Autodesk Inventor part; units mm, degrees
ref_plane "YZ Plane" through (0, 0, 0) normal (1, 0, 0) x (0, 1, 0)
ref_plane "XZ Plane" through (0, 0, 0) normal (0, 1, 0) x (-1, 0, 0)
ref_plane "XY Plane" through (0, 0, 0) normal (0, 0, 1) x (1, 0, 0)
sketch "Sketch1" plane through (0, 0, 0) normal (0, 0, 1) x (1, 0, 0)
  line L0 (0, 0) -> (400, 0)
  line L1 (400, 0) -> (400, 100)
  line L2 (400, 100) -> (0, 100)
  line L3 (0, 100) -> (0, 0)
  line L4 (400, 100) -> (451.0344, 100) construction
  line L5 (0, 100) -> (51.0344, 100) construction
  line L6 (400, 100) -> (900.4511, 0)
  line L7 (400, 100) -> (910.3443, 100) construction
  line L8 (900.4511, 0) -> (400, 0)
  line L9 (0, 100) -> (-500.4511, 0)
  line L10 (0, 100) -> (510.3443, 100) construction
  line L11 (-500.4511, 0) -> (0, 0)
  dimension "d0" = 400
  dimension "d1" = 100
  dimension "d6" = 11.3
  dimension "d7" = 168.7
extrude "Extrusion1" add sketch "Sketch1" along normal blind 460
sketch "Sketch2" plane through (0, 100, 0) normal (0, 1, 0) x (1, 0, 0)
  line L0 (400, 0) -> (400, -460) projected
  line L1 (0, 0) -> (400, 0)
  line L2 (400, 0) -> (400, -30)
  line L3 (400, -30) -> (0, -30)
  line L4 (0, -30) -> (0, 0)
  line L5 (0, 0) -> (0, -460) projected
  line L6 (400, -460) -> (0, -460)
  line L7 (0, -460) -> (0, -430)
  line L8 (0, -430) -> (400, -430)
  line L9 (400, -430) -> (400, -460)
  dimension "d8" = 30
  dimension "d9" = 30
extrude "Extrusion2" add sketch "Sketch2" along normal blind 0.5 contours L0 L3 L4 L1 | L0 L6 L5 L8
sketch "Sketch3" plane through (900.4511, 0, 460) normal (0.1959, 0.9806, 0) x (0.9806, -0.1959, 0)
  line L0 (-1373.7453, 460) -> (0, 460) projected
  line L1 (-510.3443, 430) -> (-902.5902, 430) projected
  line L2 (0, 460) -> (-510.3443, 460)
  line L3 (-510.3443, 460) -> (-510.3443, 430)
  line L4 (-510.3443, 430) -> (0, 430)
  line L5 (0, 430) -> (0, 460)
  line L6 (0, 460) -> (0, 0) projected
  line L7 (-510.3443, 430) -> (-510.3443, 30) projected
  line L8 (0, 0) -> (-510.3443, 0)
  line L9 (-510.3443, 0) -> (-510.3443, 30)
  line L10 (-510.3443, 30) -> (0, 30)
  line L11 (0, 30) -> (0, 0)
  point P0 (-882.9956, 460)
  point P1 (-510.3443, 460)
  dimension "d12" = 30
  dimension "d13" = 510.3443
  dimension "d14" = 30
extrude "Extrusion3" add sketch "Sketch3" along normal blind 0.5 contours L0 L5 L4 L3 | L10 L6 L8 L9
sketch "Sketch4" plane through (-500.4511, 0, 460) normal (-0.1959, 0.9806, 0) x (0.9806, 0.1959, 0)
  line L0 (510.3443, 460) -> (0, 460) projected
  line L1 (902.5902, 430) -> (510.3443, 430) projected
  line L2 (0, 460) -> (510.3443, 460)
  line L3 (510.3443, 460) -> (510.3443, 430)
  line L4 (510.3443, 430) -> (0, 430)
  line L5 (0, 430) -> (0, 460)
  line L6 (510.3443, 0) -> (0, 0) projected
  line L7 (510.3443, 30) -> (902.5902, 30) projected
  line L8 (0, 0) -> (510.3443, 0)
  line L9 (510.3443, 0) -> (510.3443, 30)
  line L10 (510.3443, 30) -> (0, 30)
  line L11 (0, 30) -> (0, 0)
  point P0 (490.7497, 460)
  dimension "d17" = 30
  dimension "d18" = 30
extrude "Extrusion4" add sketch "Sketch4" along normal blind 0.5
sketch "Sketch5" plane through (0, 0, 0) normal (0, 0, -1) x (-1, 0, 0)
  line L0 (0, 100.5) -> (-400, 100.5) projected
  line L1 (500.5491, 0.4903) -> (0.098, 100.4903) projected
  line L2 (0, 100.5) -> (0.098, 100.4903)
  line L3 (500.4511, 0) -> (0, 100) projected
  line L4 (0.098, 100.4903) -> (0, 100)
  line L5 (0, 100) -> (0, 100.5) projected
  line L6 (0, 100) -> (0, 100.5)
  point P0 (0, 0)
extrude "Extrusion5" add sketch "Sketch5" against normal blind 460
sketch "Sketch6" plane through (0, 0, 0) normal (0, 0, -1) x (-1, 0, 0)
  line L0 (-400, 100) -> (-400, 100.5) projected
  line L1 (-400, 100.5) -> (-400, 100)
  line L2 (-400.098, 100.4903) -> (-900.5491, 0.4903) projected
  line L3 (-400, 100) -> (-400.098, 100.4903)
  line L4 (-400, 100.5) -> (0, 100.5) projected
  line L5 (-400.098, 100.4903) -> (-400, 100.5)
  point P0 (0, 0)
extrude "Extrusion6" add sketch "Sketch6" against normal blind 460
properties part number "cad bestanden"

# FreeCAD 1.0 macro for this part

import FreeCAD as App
import Part
import Sketcher
from FreeCAD import Vector
Q = App.Units.Quantity


def add_polygon(sketch, points):
    """Adds a closed chain of lines whose ends are joined by coincident constraints."""
    first, n = sketch.GeometryCount, len(points)
    for a, b in zip(points, points[1:] + points[:1]):
        sketch.addGeometry(Part.LineSegment(App.Vector(*a, 0), App.Vector(*b, 0)), False)
    for i in range(n):
        sketch.addConstraint(Sketcher.Constraint("Coincident", first + i, 2, first + (i + 1) % n, 1))

doc = App.newDocument("Part")
body = doc.addObject("PartDesign::Body", "Body")

# Sketch on XY plane
sketch1 = doc.addObject("Sketcher::SketchObject", "Sketch")
body.addObject(sketch1)
sketch1.AttachmentSupport = (doc.XY_Plane, [""])
sketch1.MapMode = "FlatFace"
add_polygon(sketch1, [(400, 100), (0, 100), (-500, 0), (900, 0)])  # lines 0-3
sketch1.addConstraint(Sketcher.Constraint("Horizontal", 0))
sketch1.addConstraint(Sketcher.Constraint("Horizontal", 2))
sketch1.addConstraint(Sketcher.Constraint("PointOnObject", 0, 2, -2))
sketch1.addConstraint(Sketcher.Constraint("PointOnObject", 1, 2, -1))
sketch1.addConstraint(Sketcher.Constraint("Equal", 1, 3))
sketch1.addConstraint(Sketcher.Constraint("DistanceX", 0, 2, 0, 1, Q("400 mm")))
sketch1.addConstraint(Sketcher.Constraint("DistanceY", -1, 1, 0, 2, Q("100 mm")))
sketch1.addConstraint(Sketcher.Constraint("Angle", 1, Q("-168.7 deg")))
pad1 = doc.addObject("PartDesign::Pad", "Pad")
body.addObject(pad1)
pad1.Profile = sketch1
pad1.Length = 460

# Sketch on XZ plane
sketch2 = doc.addObject("Sketcher::SketchObject", "Sketch001")
body.addObject(sketch2)
sketch2.AttachmentSupport = (doc.XZ_Plane, [""])
sketch2.MapMode = "FlatFace"
sketch2.AttachmentOffset = App.Placement(Vector(0, 0, -100), App.Rotation())
add_polygon(sketch2, [(400, 30), (400, 0), (0, 0), (0, 30)])  # lines 0-3
add_polygon(sketch2, [(400, 460), (400, 430), (0, 430), (0, 460)])  # lines 4-7
sketch2.addConstraint(Sketcher.Constraint("Vertical", 0))
sketch2.addConstraint(Sketcher.Constraint("Horizontal", 1))
sketch2.addConstraint(Sketcher.Constraint("Vertical", 2))
sketch2.addConstraint(Sketcher.Constraint("Horizontal", 3))
sketch2.addConstraint(Sketcher.Constraint("Vertical", 4))
sketch2.addConstraint(Sketcher.Constraint("Horizontal", 5))
sketch2.addConstraint(Sketcher.Constraint("Vertical", 6))
sketch2.addConstraint(Sketcher.Constraint("Horizontal", 7))
sketch2.addConstraint(Sketcher.Constraint("Coincident", 1, 2, -1, 1))
sketch2.addConstraint(Sketcher.Constraint("PointOnObject", 5, 2, -2))
sketch2.addConstraint(Sketcher.Constraint("Vertical", 3, 2, 4, 2))
sketch2.addConstraint(Sketcher.Constraint("Equal", 2, 4))
sketch2.addConstraint(Sketcher.Constraint("DistanceY", 0, 2, 0, 1, Q("30 mm")))
sketch2.addConstraint(Sketcher.Constraint("DistanceX", 1, 2, 1, 1, Q("400 mm")))
sketch2.addConstraint(Sketcher.Constraint("DistanceY", -1, 1, 4, 2, Q("430 mm")))
pad2 = doc.addObject("PartDesign::Pad", "Pad001")
body.addObject(pad2)
pad2.Profile = sketch2
pad2.Length = 0.5
pad2.Reversed = True

# Sketch on an angled plane
sketch3 = doc.addObject("Sketcher::SketchObject", "Sketch002")
body.addObject(sketch3)
sketch3.Placement = App.Placement(Vector(900.4511, 0, 460), App.Rotation(Vector(0.980622962, -0.195904587, 0), Vector(0, 0, -1.000000001), Vector(0.195904587, 0.980622962, 0), "ZXY"))
add_polygon(sketch3, [(0, 460), (-510, 460), (-510, 430), (0, 430)])  # lines 0-3
add_polygon(sketch3, [(0, 30), (-510, 30), (-510, 0), (0, 0)])  # lines 4-7
sketch3.addConstraint(Sketcher.Constraint("Horizontal", 0))
sketch3.addConstraint(Sketcher.Constraint("Vertical", 1))
sketch3.addConstraint(Sketcher.Constraint("Horizontal", 2))
sketch3.addConstraint(Sketcher.Constraint("Vertical", 3))
sketch3.addConstraint(Sketcher.Constraint("Horizontal", 4))
sketch3.addConstraint(Sketcher.Constraint("Vertical", 5))
sketch3.addConstraint(Sketcher.Constraint("Horizontal", 6))
sketch3.addConstraint(Sketcher.Constraint("Vertical", 7))
sketch3.addConstraint(Sketcher.Constraint("Coincident", 6, 2, -1, 1))
sketch3.addConstraint(Sketcher.Constraint("PointOnObject", 2, 2, -2))
sketch3.addConstraint(Sketcher.Constraint("Vertical", 1, 2, 4, 2))
sketch3.addConstraint(Sketcher.Constraint("Equal", 3, 5))
sketch3.addConstraint(Sketcher.Constraint("DistanceY", 1, 2, 1, 1, Q("30 mm")))
sketch3.addConstraint(Sketcher.Constraint("DistanceX", 0, 2, 0, 1, Q("510.3443 mm")))
sketch3.addConstraint(Sketcher.Constraint("DistanceY", -1, 1, 0, 2, Q("460 mm")))
pad3 = doc.addObject("PartDesign::Pad", "Pad002")
body.addObject(pad3)
pad3.Profile = sketch3
pad3.Length = 0.5

# Sketch on an angled plane
sketch4 = doc.addObject("Sketcher::SketchObject", "Sketch003")
body.addObject(sketch4)
sketch4.Placement = App.Placement(Vector(-500.4511, 0, 460), App.Rotation(Vector(0.980622962, 0.195904587, 0), Vector(0, 0, -1.000000001), Vector(-0.195904587, 0.980622962, 0), "ZXY"))
add_polygon(sketch4, [(510, 430), (510, 460), (0, 460), (0, 430)])  # lines 0-3
add_polygon(sketch4, [(0, 0), (510, 0), (510, 30), (0, 30)])  # lines 4-7
sketch4.addConstraint(Sketcher.Constraint("Vertical", 0))
sketch4.addConstraint(Sketcher.Constraint("Horizontal", 1))
sketch4.addConstraint(Sketcher.Constraint("Vertical", 2))
sketch4.addConstraint(Sketcher.Constraint("Horizontal", 3))
sketch4.addConstraint(Sketcher.Constraint("Horizontal", 4))
sketch4.addConstraint(Sketcher.Constraint("Vertical", 5))
sketch4.addConstraint(Sketcher.Constraint("Horizontal", 6))
sketch4.addConstraint(Sketcher.Constraint("Vertical", 7))
sketch4.addConstraint(Sketcher.Constraint("Coincident", 7, 2, -1, 1))
sketch4.addConstraint(Sketcher.Constraint("PointOnObject", 1, 2, -2))
sketch4.addConstraint(Sketcher.Constraint("Vertical", 3, 2, 4, 2))
sketch4.addConstraint(Sketcher.Constraint("Equal", 2, 5))
sketch4.addConstraint(Sketcher.Constraint("DistanceY", 0, 1, 0, 2, Q("30 mm")))
sketch4.addConstraint(Sketcher.Constraint("DistanceY", -1, 1, 0, 2, Q("460 mm")))
sketch4.addConstraint(Sketcher.Constraint("DistanceX", 1, 2, 1, 1, Q("510.3443 mm")))
pad4 = doc.addObject("PartDesign::Pad", "Pad003")
body.addObject(pad4)
pad4.Profile = sketch4
pad4.Length = 0.5

# Sketch on XY plane
sketch5 = doc.addObject("Sketcher::SketchObject", "Sketch004")
body.addObject(sketch5)
sketch5.AttachmentSupport = (doc.XY_Plane, [""])
sketch5.MapMode = "FlatFace"
add_polygon(sketch5, [(-0.1, 100.49), (0, 100.5), (0, 100)])  # lines 0-2
sketch5.addConstraint(Sketcher.Constraint("Vertical", 1))
sketch5.addConstraint(Sketcher.Constraint("PointOnObject", 0, 2, -2))
sketch5.addConstraint(Sketcher.Constraint("DistanceY", 1, 2, 1, 1, Q("0.5 mm")))
sketch5.addConstraint(Sketcher.Constraint("DistanceY", -1, 1, 1, 2, Q("100 mm")))
sketch5.addConstraint(Sketcher.Constraint("Distance", 2, Q("0.5 mm")))
sketch5.addConstraint(Sketcher.Constraint("DistanceX", 2, 2, -1, 1, Q("0.098 mm")))
pad5 = doc.addObject("PartDesign::Pad", "Pad004")
body.addObject(pad5)
pad5.Profile = sketch5
pad5.Length = 460

# Sketch on XY plane
sketch6 = doc.addObject("Sketcher::SketchObject", "Sketch005")
body.addObject(sketch6)
sketch6.AttachmentSupport = (doc.XY_Plane, [""])
sketch6.MapMode = "FlatFace"
add_polygon(sketch6, [(400.1, 100.49), (400, 100), (400, 100.5)])  # lines 0-2
sketch6.addConstraint(Sketcher.Constraint("Vertical", 1))
sketch6.addConstraint(Sketcher.Constraint("DistanceY", 1, 1, 1, 2, Q("0.5 mm")))
sketch6.addConstraint(Sketcher.Constraint("DistanceX", -1, 1, 0, 2, Q("400 mm")))
sketch6.addConstraint(Sketcher.Constraint("DistanceY", -1, 1, 0, 2, Q("100 mm")))
sketch6.addConstraint(Sketcher.Constraint("Distance", 0, Q("0.5 mm")))
sketch6.addConstraint(Sketcher.Constraint("DistanceX", -1, 1, 2, 2, Q("400.098 mm")))
pad6 = doc.addObject("PartDesign::Pad", "Pad005")
body.addObject(pad6)
pad6.Profile = sketch6
pad6.Length = 460

doc.recompute()
